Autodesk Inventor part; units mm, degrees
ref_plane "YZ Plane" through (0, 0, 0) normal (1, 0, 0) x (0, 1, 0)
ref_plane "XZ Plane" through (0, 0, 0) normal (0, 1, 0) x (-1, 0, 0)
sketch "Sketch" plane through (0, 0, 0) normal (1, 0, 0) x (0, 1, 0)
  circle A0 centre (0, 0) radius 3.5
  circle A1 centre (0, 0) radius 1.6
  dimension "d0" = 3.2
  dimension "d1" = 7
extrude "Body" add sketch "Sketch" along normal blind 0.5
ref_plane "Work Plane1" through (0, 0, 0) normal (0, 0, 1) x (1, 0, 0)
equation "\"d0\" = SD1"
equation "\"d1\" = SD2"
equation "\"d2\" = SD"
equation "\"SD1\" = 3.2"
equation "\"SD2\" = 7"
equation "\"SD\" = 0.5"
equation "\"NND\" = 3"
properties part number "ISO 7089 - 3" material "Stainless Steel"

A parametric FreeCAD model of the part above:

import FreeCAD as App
import Part
import Sketcher

doc = App.newDocument("Part")
params = doc.addObject("Spreadsheet::Sheet", "Params")
for row, (alias, value) in enumerate([
    ("sketch1_diameter", "7 mm"),
    ("sketch1_diameter2", "3.2 mm"),
    ("pad1_length", "0.5 mm"),
], start=1):
    params.set(f"A{row}", alias)
    params.set(f"B{row}", "=" + value)
    params.setAlias(f"B{row}", alias)

body = doc.addObject("PartDesign::Body", "Body")

sketch1 = body.newObject("Sketcher::SketchObject", "Sketch")
sketch1.AttachmentSupport = (doc.getObject("YZ_Plane"), [""])
sketch1.MapMode = "FlatFace"
sketch1.addGeometry([
    Part.Circle(App.Vector(0, 0, 0), App.Vector(0, 0, 1), 3.5),
    Part.Circle(App.Vector(0, 0, 0), App.Vector(0, 0, 1), 1.6),
], False)
sketch1.addConstraint([
    Sketcher.Constraint("Coincident", 0, 3, -1, 1),
    Sketcher.Constraint("Coincident", 1, 3, -1, 1),
    Sketcher.Constraint("Diameter", 0, 7.0),
    Sketcher.Constraint("Diameter", 1, 3.2),
])
sketch1.setExpression("Constraints[2]", "Params.sketch1_diameter")
sketch1.setExpression("Constraints[3]", "Params.sketch1_diameter2")
pad1 = body.newObject("PartDesign::Pad", "Pad")
pad1.Profile = sketch1
pad1.setExpression("Length", "Params.pad1_length")

doc.recompute()
